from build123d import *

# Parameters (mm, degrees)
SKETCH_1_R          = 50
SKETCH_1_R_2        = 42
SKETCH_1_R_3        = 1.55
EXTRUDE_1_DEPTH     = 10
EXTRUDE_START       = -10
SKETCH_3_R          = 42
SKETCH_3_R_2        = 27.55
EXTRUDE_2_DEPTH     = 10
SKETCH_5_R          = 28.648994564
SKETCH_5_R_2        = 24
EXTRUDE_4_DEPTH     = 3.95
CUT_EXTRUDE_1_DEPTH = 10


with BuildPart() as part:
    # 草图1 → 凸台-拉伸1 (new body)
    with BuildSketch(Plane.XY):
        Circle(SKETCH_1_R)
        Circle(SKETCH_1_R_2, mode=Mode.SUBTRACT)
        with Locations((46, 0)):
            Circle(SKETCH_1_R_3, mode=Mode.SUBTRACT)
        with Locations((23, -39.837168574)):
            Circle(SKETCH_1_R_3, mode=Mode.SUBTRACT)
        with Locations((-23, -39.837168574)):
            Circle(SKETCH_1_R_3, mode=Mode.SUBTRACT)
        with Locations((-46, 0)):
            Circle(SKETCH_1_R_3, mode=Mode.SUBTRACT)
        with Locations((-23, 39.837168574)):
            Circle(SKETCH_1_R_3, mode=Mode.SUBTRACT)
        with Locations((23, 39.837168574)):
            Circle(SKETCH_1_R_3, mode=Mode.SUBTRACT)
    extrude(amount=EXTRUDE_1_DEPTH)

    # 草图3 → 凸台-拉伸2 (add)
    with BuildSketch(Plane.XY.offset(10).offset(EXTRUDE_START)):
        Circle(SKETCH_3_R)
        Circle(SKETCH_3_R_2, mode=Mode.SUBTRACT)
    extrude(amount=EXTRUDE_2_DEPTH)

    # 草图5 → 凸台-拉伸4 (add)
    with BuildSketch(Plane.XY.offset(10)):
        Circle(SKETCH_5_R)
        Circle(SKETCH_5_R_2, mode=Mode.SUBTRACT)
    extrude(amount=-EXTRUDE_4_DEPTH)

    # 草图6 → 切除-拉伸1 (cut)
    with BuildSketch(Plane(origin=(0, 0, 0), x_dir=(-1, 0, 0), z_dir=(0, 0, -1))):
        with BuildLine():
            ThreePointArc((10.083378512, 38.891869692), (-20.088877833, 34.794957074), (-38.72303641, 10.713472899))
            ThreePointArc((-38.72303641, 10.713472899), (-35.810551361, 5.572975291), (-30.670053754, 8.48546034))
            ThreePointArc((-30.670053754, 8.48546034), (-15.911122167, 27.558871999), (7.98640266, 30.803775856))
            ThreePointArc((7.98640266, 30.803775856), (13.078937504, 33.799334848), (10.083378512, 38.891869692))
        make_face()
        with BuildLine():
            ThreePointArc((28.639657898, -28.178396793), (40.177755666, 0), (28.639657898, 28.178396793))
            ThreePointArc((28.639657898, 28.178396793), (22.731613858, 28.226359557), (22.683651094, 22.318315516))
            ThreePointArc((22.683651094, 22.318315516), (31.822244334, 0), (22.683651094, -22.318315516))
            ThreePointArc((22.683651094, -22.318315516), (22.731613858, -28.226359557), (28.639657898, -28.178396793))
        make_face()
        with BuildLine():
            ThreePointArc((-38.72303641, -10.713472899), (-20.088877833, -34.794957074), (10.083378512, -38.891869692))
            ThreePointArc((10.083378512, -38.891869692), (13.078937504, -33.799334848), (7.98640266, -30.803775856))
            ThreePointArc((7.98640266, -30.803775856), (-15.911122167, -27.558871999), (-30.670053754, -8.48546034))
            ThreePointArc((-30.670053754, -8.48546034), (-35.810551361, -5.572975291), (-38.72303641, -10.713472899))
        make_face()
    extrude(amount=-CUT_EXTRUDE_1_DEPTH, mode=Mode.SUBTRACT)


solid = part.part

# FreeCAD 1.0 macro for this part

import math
import FreeCAD as App
import Part
import Sketcher
from FreeCAD import Vector
Q = App.Units.Quantity

doc = App.newDocument("Part")
body = doc.addObject("PartDesign::Body", "Body")

# Sketch on XY plane
sketch1 = body.newObject("Sketcher::SketchObject", "Sketch")
sketch1.AttachmentSupport = (doc.getObject("XY_Plane"), [""])
sketch1.MapMode = "FlatFace"
sketch1.addGeometry([
    Part.Circle(Vector(0, 0, 0), Vector(0, 0, 1), 50),  # 0
    Part.Circle(Vector(-23, -39.837169, 0), Vector(0, 0, 1), 1.55),  # 1
    Part.Circle(Vector(23, -39.837169, 0), Vector(0, 0, 1), 1.55),  # 2
    Part.Circle(Vector(-46, 0, 0), Vector(0, 0, 1), 1.55),  # 3
    Part.Circle(Vector(-23, 39.837169, 0), Vector(0, 0, 1), 1.55),  # 4
    Part.Circle(Vector(0, 0, 0), Vector(0, 0, 1), 42),  # 5
    Part.Circle(Vector(46, 0, 0), Vector(0, 0, 1), 1.55),  # 6
    Part.Circle(Vector(23, 39.837169, 0), Vector(0, 0, 1), 1.55),  # 7
], False)
sketch1.addConstraint([
    Sketcher.Constraint("Coincident", 0, 3, -1, 1),
    Sketcher.Constraint("Coincident", 5, 3, -1, 1),
    Sketcher.Constraint("Equal", 1, 2),
    Sketcher.Constraint("Equal", 2, 3),
    Sketcher.Constraint("Equal", 3, 4),
    Sketcher.Constraint("Equal", 4, 6),
    Sketcher.Constraint("Equal", 6, 7),
    Sketcher.Constraint("Symmetric", 2, 3, 4, 3, -1, 1),
    Sketcher.Constraint("Symmetric", 3, 3, 6, 3, -1, 1),
    Sketcher.Constraint("Symmetric", 1, 3, 7, 3, -1, 1),
    Sketcher.Constraint("Symmetric", 1, 3, 2, 3, -2),
    Sketcher.Constraint("PointOnObject", 3, 3, -1),
    Sketcher.Constraint("Diameter", 0, Q("100 mm")),
    Sketcher.Constraint("Diameter", 5, Q("84 mm")),
    Sketcher.Constraint("Diameter", 1, Q("3.1 mm")),
    Sketcher.Constraint("DistanceX", 1, 3, -1, 1, Q("23 mm")),
    Sketcher.Constraint("DistanceX", 3, 3, -1, 1, Q("46 mm")),
    Sketcher.Constraint("DistanceY", 1, 3, -1, 1, Q("39.837169 mm")),
])
pad1 = body.newObject("PartDesign::Pad", "Pad")
pad1.Profile = sketch1
pad1.Length = 10

# Sketch on XY plane
sketch2 = body.newObject("Sketcher::SketchObject", "Sketch001")
sketch2.AttachmentSupport = (doc.getObject("XY_Plane"), [""])
sketch2.MapMode = "FlatFace"
sketch2.addGeometry([
    Part.Circle(Vector(0, 0, 0), Vector(0, 0, 1), 42),
    Part.Circle(Vector(0, 0, 0), Vector(0, 0, 1), 27.55),
], False)
sketch2.addConstraint([
    Sketcher.Constraint("Coincident", 0, 3, -1, 1),
    Sketcher.Constraint("Coincident", 1, 3, -1, 1),
    Sketcher.Constraint("Diameter", 0, Q("84 mm")),
    Sketcher.Constraint("Diameter", 1, Q("55.1 mm")),
])
pad2 = body.newObject("PartDesign::Pad", "Pad001")
pad2.Profile = sketch2
pad2.Length = 10

# Sketch on XY plane
sketch3 = body.newObject("Sketcher::SketchObject", "Sketch002")
sketch3.AttachmentSupport = (doc.getObject("XY_Plane"), [""])
sketch3.MapMode = "FlatFace"
sketch3.AttachmentOffset = App.Placement(Vector(0, 0, 10), App.Rotation())
sketch3.addGeometry([
    Part.Circle(Vector(0, 0, 0), Vector(0, 0, 1), 28.648995),
    Part.Circle(Vector(0, 0, 0), Vector(0, 0, 1), 24),
], False)
sketch3.addConstraint([
    Sketcher.Constraint("Coincident", 0, 3, -1, 1),
    Sketcher.Constraint("Coincident", 1, 3, -1, 1),
    Sketcher.Constraint("Diameter", 1, Q("48 mm")),
    Sketcher.Constraint("Diameter", 0, Q("57.297989 mm")),
])
pad3 = body.newObject("PartDesign::Pad", "Pad002")
pad3.Profile = sketch3
pad3.Length = 3.95
pad3.Reversed = True

# Sketch on XY plane
sketch4 = body.newObject("Sketcher::SketchObject", "Sketch003")
sketch4.AttachmentSupport = (doc.getObject("XY_Plane"), [""])
sketch4.MapMode = "FlatFace"
sketch4.addGeometry([
    Part.ArcOfCircle(Part.Circle(Vector(0, 0, 0), Vector(0, 0, 1), 40.177756), math.radians(15.465129), math.radians(104.534871)),  # 0
    Part.ArcOfCircle(Part.Circle(Vector(34.696545, 9.599467, 0), Vector(0, 0, 1), 4.177756), math.radians(-164.534871), math.radians(15.465129)),  # 1
    Part.ArcOfCircle(Part.Circle(Vector(0, 0, 0), Vector(0, 0, 1), 31.822244), math.radians(15.465129), math.radians(104.534871)),  # 2
    Part.ArcOfCircle(Part.Circle(Vector(-9.034891, 34.847823, 0), Vector(0, 0, 1), 4.177756), math.radians(104.534871), math.radians(284.534871)),  # 3
    Part.ArcOfCircle(Part.Circle(Vector(0, 0, 0), Vector(0, 0, 1), 40.177756), math.radians(135.465129), math.radians(224.534871)),  # 4
    Part.ArcOfCircle(Part.Circle(Vector(-25.661654, 25.248356, 0), Vector(0, 0, 1), 4.177756), math.radians(-44.534871), math.radians(135.465129)),  # 5
    Part.ArcOfCircle(Part.Circle(Vector(0, 0, 0), Vector(0, 0, 1), 31.822244), math.radians(135.465129), math.radians(224.534871)),  # 6
    Part.ArcOfCircle(Part.Circle(Vector(-25.661654, -25.248356, 0), Vector(0, 0, 1), 4.177756), math.radians(-135.465129), math.radians(44.534871)),  # 7
    Part.ArcOfCircle(Part.Circle(Vector(0, 0, 0), Vector(0, 0, 1), 40.177756), math.radians(-104.534871), math.radians(-15.465129)),  # 8
    Part.ArcOfCircle(Part.Circle(Vector(-9.034891, -34.847823, 0), Vector(0, 0, 1), 4.177756), math.radians(75.465129), math.radians(255.465129)),  # 9
    Part.ArcOfCircle(Part.Circle(Vector(0, 0, 0), Vector(0, 0, 1), 31.822244), math.radians(-104.534871), math.radians(-15.465129)),  # 10
    Part.ArcOfCircle(Part.Circle(Vector(34.696545, -9.599467, 0), Vector(0, 0, 1), 4.177756), math.radians(-15.465129), math.radians(164.534871)),  # 11
], False)
sketch4.addConstraint([
    Sketcher.Constraint("Tangent", 0, 1, 1, 2),
    Sketcher.Constraint("Tangent", 1, 1, 2, 1),
    Sketcher.Constraint("Tangent", 2, 2, 3, 2),
    Sketcher.Constraint("Tangent", 3, 1, 0, 2),
    Sketcher.Constraint("Tangent", 4, 1, 5, 2),
    Sketcher.Constraint("Tangent", 5, 1, 6, 1),
    Sketcher.Constraint("Tangent", 6, 2, 7, 2),
    Sketcher.Constraint("Tangent", 7, 1, 4, 2),
    Sketcher.Constraint("Tangent", 8, 1, 9, 2),
    Sketcher.Constraint("Tangent", 9, 1, 10, 1),
    Sketcher.Constraint("Tangent", 10, 2, 11, 2),
    Sketcher.Constraint("Tangent", 11, 1, 8, 2),
    Sketcher.Constraint("Coincident", 0, 3, -1, 1),
    Sketcher.Constraint("Coincident", 2, 3, -1, 1),
    Sketcher.Constraint("Coincident", 4, 3, -1, 1),
    Sketcher.Constraint("Coincident", 6, 3, -1, 1),
    Sketcher.Constraint("Coincident", 8, 3, -1, 1),
    Sketcher.Constraint("Coincident", 10, 3, -1, 1),
    Sketcher.Constraint("Equal", 0, 4),
    Sketcher.Constraint("Equal", 3, 5),
    Sketcher.Constraint("Equal", 4, 8),
    Sketcher.Constraint("Equal", 7, 9),
    Sketcher.Constraint("Vertical", 5, 3, 7, 3),
    Sketcher.Constraint("Vertical", 3, 3, 9, 3),
    Sketcher.Constraint("Vertical", 1, 3, 11, 3),
    Sketcher.Constraint("Radius", 0, Q("40.177756 mm")),
    Sketcher.Constraint("Radius", 1, Q("4.177756 mm")),
    Sketcher.Constraint("DistanceX", 5, 3, 1, 3, Q("60.3582 mm")),
    Sketcher.Constraint("DistanceX", 3, 3, -1, 1, Q("9.034891 mm")),
    Sketcher.Constraint("DistanceY", -1, 1, 1, 1, Q("8.48546 mm")),
])
pocket1 = body.newObject("PartDesign::Pocket", "Pocket")
pocket1.Profile = sketch4
pocket1.Length = 10
pocket1.Reversed = True

doc.recompute()
